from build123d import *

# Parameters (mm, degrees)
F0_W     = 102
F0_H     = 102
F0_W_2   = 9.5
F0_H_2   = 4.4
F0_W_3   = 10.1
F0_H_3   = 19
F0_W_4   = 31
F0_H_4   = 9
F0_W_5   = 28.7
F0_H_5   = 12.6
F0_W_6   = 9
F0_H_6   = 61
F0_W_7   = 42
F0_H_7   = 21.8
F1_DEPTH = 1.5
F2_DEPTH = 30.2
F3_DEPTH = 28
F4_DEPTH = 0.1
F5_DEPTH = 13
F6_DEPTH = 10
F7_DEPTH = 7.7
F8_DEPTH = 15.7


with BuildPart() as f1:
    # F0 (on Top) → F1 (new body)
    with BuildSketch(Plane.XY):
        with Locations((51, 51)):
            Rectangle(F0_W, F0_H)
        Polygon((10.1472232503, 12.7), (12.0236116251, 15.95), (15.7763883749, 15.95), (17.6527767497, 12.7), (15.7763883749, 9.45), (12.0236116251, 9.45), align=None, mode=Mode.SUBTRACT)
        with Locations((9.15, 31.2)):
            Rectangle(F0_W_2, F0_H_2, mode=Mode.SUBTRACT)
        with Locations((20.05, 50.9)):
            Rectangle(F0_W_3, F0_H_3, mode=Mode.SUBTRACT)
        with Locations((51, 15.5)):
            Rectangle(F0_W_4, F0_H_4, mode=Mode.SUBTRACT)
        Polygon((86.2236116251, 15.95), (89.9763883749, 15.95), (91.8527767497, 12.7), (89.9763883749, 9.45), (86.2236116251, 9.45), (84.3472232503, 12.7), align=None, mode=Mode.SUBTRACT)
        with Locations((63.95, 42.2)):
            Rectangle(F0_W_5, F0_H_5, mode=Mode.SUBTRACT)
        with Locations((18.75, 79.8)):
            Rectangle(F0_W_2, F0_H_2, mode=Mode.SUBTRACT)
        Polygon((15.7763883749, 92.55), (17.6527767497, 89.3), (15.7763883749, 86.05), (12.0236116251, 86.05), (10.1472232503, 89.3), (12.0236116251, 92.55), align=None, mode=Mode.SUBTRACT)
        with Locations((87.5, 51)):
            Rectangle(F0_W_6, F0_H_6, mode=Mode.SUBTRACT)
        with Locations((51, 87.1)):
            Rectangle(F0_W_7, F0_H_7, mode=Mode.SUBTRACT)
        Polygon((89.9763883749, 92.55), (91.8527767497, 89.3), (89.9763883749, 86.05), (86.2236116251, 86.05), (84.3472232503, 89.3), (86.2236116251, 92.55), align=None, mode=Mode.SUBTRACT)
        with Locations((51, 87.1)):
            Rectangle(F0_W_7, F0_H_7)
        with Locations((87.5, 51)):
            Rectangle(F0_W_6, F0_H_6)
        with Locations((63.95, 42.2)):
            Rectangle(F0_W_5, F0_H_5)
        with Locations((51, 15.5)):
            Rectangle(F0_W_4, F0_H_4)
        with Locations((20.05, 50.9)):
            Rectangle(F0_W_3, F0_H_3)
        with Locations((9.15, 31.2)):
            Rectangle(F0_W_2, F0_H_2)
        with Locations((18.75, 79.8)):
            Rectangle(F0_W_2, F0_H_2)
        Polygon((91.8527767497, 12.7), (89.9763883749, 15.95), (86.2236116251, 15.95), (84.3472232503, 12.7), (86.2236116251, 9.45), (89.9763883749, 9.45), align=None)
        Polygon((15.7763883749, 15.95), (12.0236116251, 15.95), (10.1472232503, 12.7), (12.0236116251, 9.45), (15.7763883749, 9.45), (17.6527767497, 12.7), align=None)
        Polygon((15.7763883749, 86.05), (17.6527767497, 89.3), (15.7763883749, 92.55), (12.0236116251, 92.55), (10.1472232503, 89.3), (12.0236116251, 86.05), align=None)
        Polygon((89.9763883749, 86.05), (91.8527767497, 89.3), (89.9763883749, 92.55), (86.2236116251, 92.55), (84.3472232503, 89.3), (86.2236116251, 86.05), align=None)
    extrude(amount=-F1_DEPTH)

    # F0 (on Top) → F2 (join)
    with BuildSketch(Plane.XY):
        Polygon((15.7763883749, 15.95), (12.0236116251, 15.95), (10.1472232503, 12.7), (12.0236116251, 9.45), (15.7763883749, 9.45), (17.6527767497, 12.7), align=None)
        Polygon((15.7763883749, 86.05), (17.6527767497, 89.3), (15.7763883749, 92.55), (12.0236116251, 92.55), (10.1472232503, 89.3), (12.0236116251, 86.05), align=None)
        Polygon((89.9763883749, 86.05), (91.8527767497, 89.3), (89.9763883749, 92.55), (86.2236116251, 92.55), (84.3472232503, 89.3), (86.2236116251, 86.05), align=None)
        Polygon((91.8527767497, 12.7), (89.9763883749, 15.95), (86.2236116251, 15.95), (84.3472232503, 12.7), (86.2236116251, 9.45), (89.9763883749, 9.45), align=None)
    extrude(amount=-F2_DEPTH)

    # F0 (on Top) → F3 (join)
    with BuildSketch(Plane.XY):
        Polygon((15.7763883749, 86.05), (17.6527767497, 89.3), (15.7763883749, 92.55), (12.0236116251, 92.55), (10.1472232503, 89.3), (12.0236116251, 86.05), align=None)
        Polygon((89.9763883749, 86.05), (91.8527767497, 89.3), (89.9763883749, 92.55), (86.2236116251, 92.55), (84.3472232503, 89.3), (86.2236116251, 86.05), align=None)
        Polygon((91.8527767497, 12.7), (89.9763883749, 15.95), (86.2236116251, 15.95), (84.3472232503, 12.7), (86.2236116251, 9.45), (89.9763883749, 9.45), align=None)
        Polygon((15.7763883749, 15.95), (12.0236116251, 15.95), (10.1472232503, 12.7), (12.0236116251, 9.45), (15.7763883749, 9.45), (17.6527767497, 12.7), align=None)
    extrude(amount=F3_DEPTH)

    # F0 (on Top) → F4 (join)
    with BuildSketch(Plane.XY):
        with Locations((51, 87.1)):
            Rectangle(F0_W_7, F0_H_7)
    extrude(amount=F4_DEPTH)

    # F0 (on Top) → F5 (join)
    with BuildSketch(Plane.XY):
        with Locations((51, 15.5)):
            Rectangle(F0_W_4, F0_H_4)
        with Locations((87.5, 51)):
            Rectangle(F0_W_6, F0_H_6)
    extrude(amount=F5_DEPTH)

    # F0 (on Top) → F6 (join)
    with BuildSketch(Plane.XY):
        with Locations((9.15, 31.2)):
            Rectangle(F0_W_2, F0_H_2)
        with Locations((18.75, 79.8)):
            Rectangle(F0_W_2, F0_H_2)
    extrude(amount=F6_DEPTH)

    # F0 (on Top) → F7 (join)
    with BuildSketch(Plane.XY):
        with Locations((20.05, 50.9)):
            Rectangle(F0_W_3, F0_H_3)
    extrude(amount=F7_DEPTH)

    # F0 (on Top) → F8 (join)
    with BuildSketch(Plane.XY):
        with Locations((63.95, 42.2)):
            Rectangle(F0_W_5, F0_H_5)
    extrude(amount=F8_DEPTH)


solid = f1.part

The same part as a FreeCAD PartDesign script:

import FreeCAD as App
import Part
import Sketcher
from FreeCAD import Vector
Q = App.Units.Quantity


def add_polygon(sketch, points):
    """Adds a closed chain of lines whose ends are joined by coincident constraints."""
    first, n = sketch.GeometryCount, len(points)
    for a, b in zip(points, points[1:] + points[:1]):
        sketch.addGeometry(Part.LineSegment(App.Vector(*a, 0), App.Vector(*b, 0)), False)
    for i in range(n):
        sketch.addConstraint(Sketcher.Constraint("Coincident", first + i, 2, first + (i + 1) % n, 1))

doc = App.newDocument("Part")
body = doc.addObject("PartDesign::Body", "Body")

sketch1 = body.newObject("Sketcher::SketchObject", "Sketch")
sketch1.AttachmentSupport = (doc.getObject("XY_Plane"), [""])
sketch1.MapMode = "FlatFace"
add_polygon(sketch1, [(0, 102), (0, 0), (102, 0), (102, 102)])
sketch1.addConstraint(Sketcher.Constraint("Vertical", 0))
sketch1.addConstraint(Sketcher.Constraint("Horizontal", 1))
sketch1.addConstraint(Sketcher.Constraint("Vertical", 2))
sketch1.addConstraint(Sketcher.Constraint("Horizontal", 3))
sketch1.addConstraint(Sketcher.Constraint("Coincident", 0, 2, -1, 1))
sketch1.addConstraint(Sketcher.Constraint("Equal", 3, 0))
sketch1.addConstraint(Sketcher.Constraint("DistanceX", 1, 1, 1, 2, 102.0))
pad1 = body.newObject("PartDesign::Pad", "Pad")
pad1.Profile = sketch1
pad1.Length = 1.5
pad1.Reversed = True

sketch2 = body.newObject("Sketcher::SketchObject", "Sketch001")
sketch2.AttachmentSupport = (doc.getObject("XY_Plane"), [""])
sketch2.MapMode = "FlatFace"
add_polygon(sketch2, [(15.776388, 15.95), (12.023612, 15.95), (10.147223, 12.7), (12.023612, 9.45), (15.776388, 9.45), (17.652777, 12.7)])
add_polygon(sketch2, [(15.776388, 86.05), (17.652777, 89.3), (15.776388, 92.55), (12.023612, 92.55), (10.147223, 89.3), (12.023612, 86.05)])
add_polygon(sketch2, [(89.976388, 86.05), (91.852777, 89.3), (89.976388, 92.55), (86.223612, 92.55), (84.347223, 89.3), (86.223612, 86.05)])
add_polygon(sketch2, [(91.852777, 12.7), (89.976388, 15.95), (86.223612, 15.95), (84.347223, 12.7), (86.223612, 9.45), (89.976388, 9.45)])
sketch2.addConstraint(Sketcher.Constraint("Horizontal", 0))
sketch2.addConstraint(Sketcher.Constraint("Horizontal", 3))
sketch2.addConstraint(Sketcher.Constraint("Horizontal", 8))
sketch2.addConstraint(Sketcher.Constraint("Horizontal", 11))
sketch2.addConstraint(Sketcher.Constraint("Horizontal", 14))
sketch2.addConstraint(Sketcher.Constraint("Horizontal", 17))
sketch2.addConstraint(Sketcher.Constraint("Horizontal", 19))
sketch2.addConstraint(Sketcher.Constraint("Horizontal", 22))
sketch2.addConstraint(Sketcher.Constraint("Parallel", 1, 4))
sketch2.addConstraint(Sketcher.Constraint("Parallel", 2, 5))
sketch2.addConstraint(Sketcher.Constraint("Parallel", 4, 6))
sketch2.addConstraint(Sketcher.Constraint("Parallel", 5, 7))
sketch2.addConstraint(Sketcher.Constraint("Parallel", 6, 9))
sketch2.addConstraint(Sketcher.Constraint("Parallel", 7, 10))
sketch2.addConstraint(Sketcher.Constraint("Parallel", 9, 12))
sketch2.addConstraint(Sketcher.Constraint("Parallel", 10, 13))
sketch2.addConstraint(Sketcher.Constraint("Parallel", 12, 15))
sketch2.addConstraint(Sketcher.Constraint("Parallel", 13, 16))
sketch2.addConstraint(Sketcher.Constraint("Parallel", 16, 18))
sketch2.addConstraint(Sketcher.Constraint("Parallel", 15, 20))
sketch2.addConstraint(Sketcher.Constraint("Parallel", 18, 21))
sketch2.addConstraint(Sketcher.Constraint("Parallel", 20, 23))
sketch2.addConstraint(Sketcher.Constraint("Horizontal", 1, 2, 4, 2))
sketch2.addConstraint(Sketcher.Constraint("Horizontal", 6, 2, 9, 2))
sketch2.addConstraint(Sketcher.Constraint("Horizontal", 9, 2, 12, 2))
sketch2.addConstraint(Sketcher.Constraint("Horizontal", 8, 2, 13, 2))
sketch2.addConstraint(Sketcher.Constraint("Horizontal", 12, 2, 15, 2))
sketch2.addConstraint(Sketcher.Constraint("Horizontal", 11, 2, 16, 2))
sketch2.addConstraint(Sketcher.Constraint("Horizontal", 5, 2, 18, 2))
sketch2.addConstraint(Sketcher.Constraint("Horizontal", 4, 2, 20, 2))
sketch2.addConstraint(Sketcher.Constraint("Horizontal", 3, 2, 21, 2))
sketch2.addConstraint(Sketcher.Constraint("Horizontal", 20, 2, 23, 2))
sketch2.addConstraint(Sketcher.Constraint("Vertical", 0, 2, 2, 2))
sketch2.addConstraint(Sketcher.Constraint("Vertical", 3, 2, 5, 2))
sketch2.addConstraint(Sketcher.Constraint("Vertical", 4, 2, 6, 2))
sketch2.addConstraint(Sketcher.Constraint("Vertical", 5, 2, 7, 2))
sketch2.addConstraint(Sketcher.Constraint("Vertical", 2, 2, 8, 2))
sketch2.addConstraint(Sketcher.Constraint("Vertical", 8, 2, 10, 2))
sketch2.addConstraint(Sketcher.Constraint("Vertical", 17, 2, 18, 2))
sketch2.addConstraint(Sketcher.Constraint("Vertical", 16, 2, 19, 2))
sketch2.addConstraint(Sketcher.Constraint("Equal", 11, 14))
sketch2.addConstraint(Sketcher.Constraint("Angle", 1, Q("-120 deg")))
sketch2.addConstraint(Sketcher.Constraint("DistanceY", -1, 1, 1, 2, 12.7))
sketch2.addConstraint(Sketcher.Constraint("DistanceY", -1, 1, 6, 2, 89.3))
sketch2.addConstraint(Sketcher.Constraint("DistanceY", 2, 2, 0, 2, 6.5))
sketch2.addConstraint(Sketcher.Constraint("DistanceX", 6, 2, 12, 2, 74.2))
sketch2.addConstraint(Sketcher.Constraint("DistanceX", 0, 2, 0, 1, 3.752777))
sketch2.addConstraint(Sketcher.Constraint("DistanceX", -1, 1, 0, 2, 12.023612))
pad2 = body.newObject("PartDesign::Pad", "Pad001")
pad2.Profile = sketch2
pad2.Length = 30.2
pad2.Reversed = True

sketch3 = body.newObject("Sketcher::SketchObject", "Sketch002")
sketch3.AttachmentSupport = (doc.getObject("XY_Plane"), [""])
sketch3.MapMode = "FlatFace"
add_polygon(sketch3, [(15.776388, 86.05), (17.652777, 89.3), (15.776388, 92.55), (12.023612, 92.55), (10.147223, 89.3), (12.023612, 86.05)])
add_polygon(sketch3, [(89.976388, 86.05), (91.852777, 89.3), (89.976388, 92.55), (86.223612, 92.55), (84.347223, 89.3), (86.223612, 86.05)])
add_polygon(sketch3, [(91.852777, 12.7), (89.976388, 15.95), (86.223612, 15.95), (84.347223, 12.7), (86.223612, 9.45), (89.976388, 9.45)])
add_polygon(sketch3, [(15.776388, 15.95), (12.023612, 15.95), (10.147223, 12.7), (12.023612, 9.45), (15.776388, 9.45), (17.652777, 12.7)])
sketch3.addConstraint(Sketcher.Constraint("Horizontal", 2))
sketch3.addConstraint(Sketcher.Constraint("Horizontal", 5))
sketch3.addConstraint(Sketcher.Constraint("Horizontal", 8))
sketch3.addConstraint(Sketcher.Constraint("Horizontal", 11))
sketch3.addConstraint(Sketcher.Constraint("Horizontal", 13))
sketch3.addConstraint(Sketcher.Constraint("Horizontal", 16))
sketch3.addConstraint(Sketcher.Constraint("Horizontal", 18))
sketch3.addConstraint(Sketcher.Constraint("Horizontal", 21))
sketch3.addConstraint(Sketcher.Constraint("Parallel", 0, 3))
sketch3.addConstraint(Sketcher.Constraint("Parallel", 1, 4))
sketch3.addConstraint(Sketcher.Constraint("Parallel", 3, 6))
sketch3.addConstraint(Sketcher.Constraint("Parallel", 4, 7))
sketch3.addConstraint(Sketcher.Constraint("Parallel", 6, 9))
sketch3.addConstraint(Sketcher.Constraint("Parallel", 7, 10))
sketch3.addConstraint(Sketcher.Constraint("Parallel", 10, 12))
sketch3.addConstraint(Sketcher.Constraint("Parallel", 9, 14))
sketch3.addConstraint(Sketcher.Constraint("Parallel", 12, 15))
sketch3.addConstraint(Sketcher.Constraint("Parallel", 14, 17))
sketch3.addConstraint(Sketcher.Constraint("Parallel", 17, 19))
sketch3.addConstraint(Sketcher.Constraint("Parallel", 15, 20))
sketch3.addConstraint(Sketcher.Constraint("Parallel", 19, 22))
sketch3.addConstraint(Sketcher.Constraint("Parallel", 20, 23))
sketch3.addConstraint(Sketcher.Constraint("Horizontal", 0, 2, 3, 2))
sketch3.addConstraint(Sketcher.Constraint("Horizontal", 3, 2, 6, 2))
sketch3.addConstraint(Sketcher.Constraint("Horizontal", 2, 2, 7, 2))
sketch3.addConstraint(Sketcher.Constraint("Horizontal", 6, 2, 9, 2))
sketch3.addConstraint(Sketcher.Constraint("Horizontal", 5, 2, 10, 2))
sketch3.addConstraint(Sketcher.Constraint("Horizontal", 14, 2, 17, 2))
sketch3.addConstraint(Sketcher.Constraint("Horizontal", 13, 2, 18, 2))
sketch3.addConstraint(Sketcher.Constraint("Horizontal", 17, 2, 19, 2))
sketch3.addConstraint(Sketcher.Constraint("Horizontal", 16, 2, 20, 2))
sketch3.addConstraint(Sketcher.Constraint("Horizontal", 19, 2, 22, 2))
sketch3.addConstraint(Sketcher.Constraint("Vertical", 2, 2, 4, 2))
sketch3.addConstraint(Sketcher.Constraint("Vertical", 1, 2, 5, 2))
sketch3.addConstraint(Sketcher.Constraint("Vertical", 11, 2, 12, 2))
sketch3.addConstraint(Sketcher.Constraint("Vertical", 10, 2, 13, 2))
sketch3.addConstraint(Sketcher.Constraint("Vertical", 9, 2, 14, 2))
sketch3.addConstraint(Sketcher.Constraint("Vertical", 13, 2, 15, 2))
sketch3.addConstraint(Sketcher.Constraint("Vertical", 4, 2, 18, 2))
sketch3.addConstraint(Sketcher.Constraint("Vertical", 5, 2, 21, 2))
sketch3.addConstraint(Sketcher.Constraint("Equal", 5, 8))
sketch3.addConstraint(Sketcher.Constraint("Angle", 0, Q("60 deg")))
sketch3.addConstraint(Sketcher.Constraint("DistanceY", -1, 1, 0, 2, 89.3))
sketch3.addConstraint(Sketcher.Constraint("DistanceY", -1, 1, 14, 2, 12.7))
sketch3.addConstraint(Sketcher.Constraint("DistanceY", 4, 2, 2, 2, 6.5))
sketch3.addConstraint(Sketcher.Constraint("DistanceX", 0, 2, 6, 2, 74.2))
sketch3.addConstraint(Sketcher.Constraint("DistanceX", 2, 2, 2, 1, 3.752777))
sketch3.addConstraint(Sketcher.Constraint("DistanceX", -1, 1, 1, 2, 15.776388))
pad3 = body.newObject("PartDesign::Pad", "Pad002")
pad3.Profile = sketch3
pad3.Length = 28

sketch4 = body.newObject("Sketcher::SketchObject", "Sketch003")
sketch4.AttachmentSupport = (doc.getObject("XY_Plane"), [""])
sketch4.MapMode = "FlatFace"
add_polygon(sketch4, [(30, 98), (30, 76.2), (72, 76.2), (72, 98)])
sketch4.addConstraint(Sketcher.Constraint("Vertical", 0))
sketch4.addConstraint(Sketcher.Constraint("Horizontal", 1))
sketch4.addConstraint(Sketcher.Constraint("Vertical", 2))
sketch4.addConstraint(Sketcher.Constraint("Horizontal", 3))
sketch4.addConstraint(Sketcher.Constraint("DistanceX", 1, 1, 1, 2, 42.0))
sketch4.addConstraint(Sketcher.Constraint("DistanceY", 0, 2, 0, 1, 21.8))
sketch4.addConstraint(Sketcher.Constraint("DistanceX", -1, 1, 0, 2, 30.0))
sketch4.addConstraint(Sketcher.Constraint("DistanceY", -1, 1, 2, 2, 98.0))
pad4 = body.newObject("PartDesign::Pad", "Pad003")
pad4.Profile = sketch4
pad4.Length = 0.1

sketch5 = body.newObject("Sketcher::SketchObject", "Sketch004")
sketch5.AttachmentSupport = (doc.getObject("XY_Plane"), [""])
sketch5.MapMode = "FlatFace"
add_polygon(sketch5, [(35.5, 20), (35.5, 11), (66.5, 11), (66.5, 20)])
add_polygon(sketch5, [(83, 81.5), (83, 20.5), (92, 20.5), (92, 81.5)])
sketch5.addConstraint(Sketcher.Constraint("Vertical", 0))
sketch5.addConstraint(Sketcher.Constraint("Horizontal", 1))
sketch5.addConstraint(Sketcher.Constraint("Vertical", 2))
sketch5.addConstraint(Sketcher.Constraint("Horizontal", 3))
sketch5.addConstraint(Sketcher.Constraint("Vertical", 4))
sketch5.addConstraint(Sketcher.Constraint("Horizontal", 5))
sketch5.addConstraint(Sketcher.Constraint("Vertical", 6))
sketch5.addConstraint(Sketcher.Constraint("Horizontal", 7))
sketch5.addConstraint(Sketcher.Constraint("Equal", 7, 0))
sketch5.addConstraint(Sketcher.Constraint("DistanceX", 1, 1, 1, 2, 31.0))
sketch5.addConstraint(Sketcher.Constraint("DistanceX", 5, 1, 5, 2, 9.0))
sketch5.addConstraint(Sketcher.Constraint("DistanceY", 4, 2, 4, 1, 61.0))
sketch5.addConstraint(Sketcher.Constraint("DistanceY", -1, 1, 0, 2, 11.0))
sketch5.addConstraint(Sketcher.Constraint("DistanceX", -1, 1, 4, 2, 83.0))
sketch5.addConstraint(Sketcher.Constraint("DistanceX", -1, 1, 0, 2, 35.5))
sketch5.addConstraint(Sketcher.Constraint("DistanceY", -1, 1, 4, 2, 20.5))
pad5 = body.newObject("PartDesign::Pad", "Pad004")
pad5.Profile = sketch5
pad5.Length = 13

sketch6 = body.newObject("Sketcher::SketchObject", "Sketch005")
sketch6.AttachmentSupport = (doc.getObject("XY_Plane"), [""])
sketch6.MapMode = "FlatFace"
add_polygon(sketch6, [(4.4, 33.4), (4.4, 29), (13.9, 29), (13.9, 33.4)])
add_polygon(sketch6, [(14, 82), (14, 77.6), (23.5, 77.6), (23.5, 82)])
sketch6.addConstraint(Sketcher.Constraint("Vertical", 0))
sketch6.addConstraint(Sketcher.Constraint("Horizontal", 1))
sketch6.addConstraint(Sketcher.Constraint("Vertical", 2))
sketch6.addConstraint(Sketcher.Constraint("Horizontal", 3))
sketch6.addConstraint(Sketcher.Constraint("Vertical", 4))
sketch6.addConstraint(Sketcher.Constraint("Horizontal", 5))
sketch6.addConstraint(Sketcher.Constraint("Vertical", 6))
sketch6.addConstraint(Sketcher.Constraint("Horizontal", 7))
sketch6.addConstraint(Sketcher.Constraint("Equal", 3, 5))
sketch6.addConstraint(Sketcher.Constraint("Equal", 2, 4))
sketch6.addConstraint(Sketcher.Constraint("DistanceX", 1, 1, 1, 2, 9.5))
sketch6.addConstraint(Sketcher.Constraint("DistanceY", 0, 2, 0, 1, 4.4))
sketch6.addConstraint(Sketcher.Constraint("DistanceY", -1, 1, 0, 2, 29.0))
sketch6.addConstraint(Sketcher.Constraint("DistanceX", -1, 1, 4, 2, 14.0))
sketch6.addConstraint(Sketcher.Constraint("DistanceY", -1, 1, 6, 2, 82.0))
sketch6.addConstraint(Sketcher.Constraint("DistanceX", -1, 1, 0, 2, 4.4))
pad6 = body.newObject("PartDesign::Pad", "Pad005")
pad6.Profile = sketch6
pad6.Length = 10

sketch7 = body.newObject("Sketcher::SketchObject", "Sketch006")
sketch7.AttachmentSupport = (doc.getObject("XY_Plane"), [""])
sketch7.MapMode = "FlatFace"
add_polygon(sketch7, [(15, 60.4), (15, 41.4), (25.1, 41.4), (25.1, 60.4)])
sketch7.addConstraint(Sketcher.Constraint("Vertical", 0))
sketch7.addConstraint(Sketcher.Constraint("Horizontal", 1))
sketch7.addConstraint(Sketcher.Constraint("Vertical", 2))
sketch7.addConstraint(Sketcher.Constraint("Horizontal", 3))
sketch7.addConstraint(Sketcher.Constraint("DistanceY", 0, 2, 0, 1, 19.0))
sketch7.addConstraint(Sketcher.Constraint("DistanceX", 1, 1, 1, 2, 10.1))
sketch7.addConstraint(Sketcher.Constraint("DistanceX", -1, 1, 0, 2, 15.0))
sketch7.addConstraint(Sketcher.Constraint("DistanceY", -1, 1, 0, 2, 41.4))
pad7 = body.newObject("PartDesign::Pad", "Pad006")
pad7.Profile = sketch7
pad7.Length = 7.7

sketch8 = body.newObject("Sketcher::SketchObject", "Sketch007")
sketch8.AttachmentSupport = (doc.getObject("XY_Plane"), [""])
sketch8.MapMode = "FlatFace"
add_polygon(sketch8, [(49.6, 48.5), (49.6, 35.9), (78.3, 35.9), (78.3, 48.5)])
sketch8.addConstraint(Sketcher.Constraint("Vertical", 0))
sketch8.addConstraint(Sketcher.Constraint("Horizontal", 1))
sketch8.addConstraint(Sketcher.Constraint("Vertical", 2))
sketch8.addConstraint(Sketcher.Constraint("Horizontal", 3))
sketch8.addConstraint(Sketcher.Constraint("DistanceX", 1, 1, 1, 2, 28.7))
sketch8.addConstraint(Sketcher.Constraint("DistanceY", 0, 2, 0, 1, 12.6))
sketch8.addConstraint(Sketcher.Constraint("DistanceX", -1, 1, 0, 2, 49.6))
sketch8.addConstraint(Sketcher.Constraint("DistanceY", -1, 1, 0, 2, 35.9))
pad8 = body.newObject("PartDesign::Pad", "Pad007")
pad8.Profile = sketch8
pad8.Length = 15.7

doc.recompute()
